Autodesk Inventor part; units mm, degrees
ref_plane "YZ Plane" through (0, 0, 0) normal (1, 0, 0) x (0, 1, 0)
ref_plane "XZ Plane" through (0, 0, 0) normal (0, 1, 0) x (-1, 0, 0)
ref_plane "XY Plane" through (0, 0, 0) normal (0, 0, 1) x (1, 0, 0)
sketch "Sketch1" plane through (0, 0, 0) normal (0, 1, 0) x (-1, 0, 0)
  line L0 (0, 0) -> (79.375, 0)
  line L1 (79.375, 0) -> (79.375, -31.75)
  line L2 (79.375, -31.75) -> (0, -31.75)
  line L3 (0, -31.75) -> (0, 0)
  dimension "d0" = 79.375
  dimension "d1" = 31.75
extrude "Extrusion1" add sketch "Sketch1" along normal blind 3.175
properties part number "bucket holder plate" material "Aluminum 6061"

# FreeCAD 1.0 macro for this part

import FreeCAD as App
import Part
import Sketcher

V = App.Vector
Q = App.Units.Quantity

doc = App.newDocument("Part")
body = doc.addObject("PartDesign::Body", "Body")

sketch1 = body.newObject("Sketcher::SketchObject", "Sketch")
sketch1.AttachmentSupport = (doc.getObject("XZ_Plane"), [""])
sketch1.MapMode = "FlatFace"
sketch1.addGeometry(Part.LineSegment(V(-79, 0, 0), V(0, 0, 0)), False)
sketch1.addGeometry(Part.LineSegment(V(0, 0, 0), V(0, -32, 0)), False)
sketch1.addGeometry(Part.LineSegment(V(0, -32, 0), V(-79, -32, 0)), False)
sketch1.addGeometry(Part.LineSegment(V(-79, -32, 0), V(-79, 0, 0)), False)
sketch1.addConstraint(Sketcher.Constraint("Coincident", 0, 2, 1, 1))
sketch1.addConstraint(Sketcher.Constraint("Coincident", 1, 2, 2, 1))
sketch1.addConstraint(Sketcher.Constraint("Coincident", 2, 2, 3, 1))
sketch1.addConstraint(Sketcher.Constraint("Coincident", 3, 2, 0, 1))
sketch1.addConstraint(Sketcher.Constraint("Horizontal", 0))
sketch1.addConstraint(Sketcher.Constraint("Vertical", 1))
sketch1.addConstraint(Sketcher.Constraint("Horizontal", 2))
sketch1.addConstraint(Sketcher.Constraint("Vertical", 3))
sketch1.addConstraint(Sketcher.Constraint("Coincident", 0, 2, -1, 1))
sketch1.addConstraint(Sketcher.Constraint("DistanceY", 1, 2, 1, 1, Q("1.25 in")))
sketch1.addConstraint(Sketcher.Constraint("DistanceX", 0, 1, 0, 2, Q("3.125 in")))
pad1 = body.newObject("PartDesign::Pad", "Pad")
pad1.Profile = sketch1
pad1.Length = Q("0.125 in")
pad1.Reversed = True

doc.recompute()
